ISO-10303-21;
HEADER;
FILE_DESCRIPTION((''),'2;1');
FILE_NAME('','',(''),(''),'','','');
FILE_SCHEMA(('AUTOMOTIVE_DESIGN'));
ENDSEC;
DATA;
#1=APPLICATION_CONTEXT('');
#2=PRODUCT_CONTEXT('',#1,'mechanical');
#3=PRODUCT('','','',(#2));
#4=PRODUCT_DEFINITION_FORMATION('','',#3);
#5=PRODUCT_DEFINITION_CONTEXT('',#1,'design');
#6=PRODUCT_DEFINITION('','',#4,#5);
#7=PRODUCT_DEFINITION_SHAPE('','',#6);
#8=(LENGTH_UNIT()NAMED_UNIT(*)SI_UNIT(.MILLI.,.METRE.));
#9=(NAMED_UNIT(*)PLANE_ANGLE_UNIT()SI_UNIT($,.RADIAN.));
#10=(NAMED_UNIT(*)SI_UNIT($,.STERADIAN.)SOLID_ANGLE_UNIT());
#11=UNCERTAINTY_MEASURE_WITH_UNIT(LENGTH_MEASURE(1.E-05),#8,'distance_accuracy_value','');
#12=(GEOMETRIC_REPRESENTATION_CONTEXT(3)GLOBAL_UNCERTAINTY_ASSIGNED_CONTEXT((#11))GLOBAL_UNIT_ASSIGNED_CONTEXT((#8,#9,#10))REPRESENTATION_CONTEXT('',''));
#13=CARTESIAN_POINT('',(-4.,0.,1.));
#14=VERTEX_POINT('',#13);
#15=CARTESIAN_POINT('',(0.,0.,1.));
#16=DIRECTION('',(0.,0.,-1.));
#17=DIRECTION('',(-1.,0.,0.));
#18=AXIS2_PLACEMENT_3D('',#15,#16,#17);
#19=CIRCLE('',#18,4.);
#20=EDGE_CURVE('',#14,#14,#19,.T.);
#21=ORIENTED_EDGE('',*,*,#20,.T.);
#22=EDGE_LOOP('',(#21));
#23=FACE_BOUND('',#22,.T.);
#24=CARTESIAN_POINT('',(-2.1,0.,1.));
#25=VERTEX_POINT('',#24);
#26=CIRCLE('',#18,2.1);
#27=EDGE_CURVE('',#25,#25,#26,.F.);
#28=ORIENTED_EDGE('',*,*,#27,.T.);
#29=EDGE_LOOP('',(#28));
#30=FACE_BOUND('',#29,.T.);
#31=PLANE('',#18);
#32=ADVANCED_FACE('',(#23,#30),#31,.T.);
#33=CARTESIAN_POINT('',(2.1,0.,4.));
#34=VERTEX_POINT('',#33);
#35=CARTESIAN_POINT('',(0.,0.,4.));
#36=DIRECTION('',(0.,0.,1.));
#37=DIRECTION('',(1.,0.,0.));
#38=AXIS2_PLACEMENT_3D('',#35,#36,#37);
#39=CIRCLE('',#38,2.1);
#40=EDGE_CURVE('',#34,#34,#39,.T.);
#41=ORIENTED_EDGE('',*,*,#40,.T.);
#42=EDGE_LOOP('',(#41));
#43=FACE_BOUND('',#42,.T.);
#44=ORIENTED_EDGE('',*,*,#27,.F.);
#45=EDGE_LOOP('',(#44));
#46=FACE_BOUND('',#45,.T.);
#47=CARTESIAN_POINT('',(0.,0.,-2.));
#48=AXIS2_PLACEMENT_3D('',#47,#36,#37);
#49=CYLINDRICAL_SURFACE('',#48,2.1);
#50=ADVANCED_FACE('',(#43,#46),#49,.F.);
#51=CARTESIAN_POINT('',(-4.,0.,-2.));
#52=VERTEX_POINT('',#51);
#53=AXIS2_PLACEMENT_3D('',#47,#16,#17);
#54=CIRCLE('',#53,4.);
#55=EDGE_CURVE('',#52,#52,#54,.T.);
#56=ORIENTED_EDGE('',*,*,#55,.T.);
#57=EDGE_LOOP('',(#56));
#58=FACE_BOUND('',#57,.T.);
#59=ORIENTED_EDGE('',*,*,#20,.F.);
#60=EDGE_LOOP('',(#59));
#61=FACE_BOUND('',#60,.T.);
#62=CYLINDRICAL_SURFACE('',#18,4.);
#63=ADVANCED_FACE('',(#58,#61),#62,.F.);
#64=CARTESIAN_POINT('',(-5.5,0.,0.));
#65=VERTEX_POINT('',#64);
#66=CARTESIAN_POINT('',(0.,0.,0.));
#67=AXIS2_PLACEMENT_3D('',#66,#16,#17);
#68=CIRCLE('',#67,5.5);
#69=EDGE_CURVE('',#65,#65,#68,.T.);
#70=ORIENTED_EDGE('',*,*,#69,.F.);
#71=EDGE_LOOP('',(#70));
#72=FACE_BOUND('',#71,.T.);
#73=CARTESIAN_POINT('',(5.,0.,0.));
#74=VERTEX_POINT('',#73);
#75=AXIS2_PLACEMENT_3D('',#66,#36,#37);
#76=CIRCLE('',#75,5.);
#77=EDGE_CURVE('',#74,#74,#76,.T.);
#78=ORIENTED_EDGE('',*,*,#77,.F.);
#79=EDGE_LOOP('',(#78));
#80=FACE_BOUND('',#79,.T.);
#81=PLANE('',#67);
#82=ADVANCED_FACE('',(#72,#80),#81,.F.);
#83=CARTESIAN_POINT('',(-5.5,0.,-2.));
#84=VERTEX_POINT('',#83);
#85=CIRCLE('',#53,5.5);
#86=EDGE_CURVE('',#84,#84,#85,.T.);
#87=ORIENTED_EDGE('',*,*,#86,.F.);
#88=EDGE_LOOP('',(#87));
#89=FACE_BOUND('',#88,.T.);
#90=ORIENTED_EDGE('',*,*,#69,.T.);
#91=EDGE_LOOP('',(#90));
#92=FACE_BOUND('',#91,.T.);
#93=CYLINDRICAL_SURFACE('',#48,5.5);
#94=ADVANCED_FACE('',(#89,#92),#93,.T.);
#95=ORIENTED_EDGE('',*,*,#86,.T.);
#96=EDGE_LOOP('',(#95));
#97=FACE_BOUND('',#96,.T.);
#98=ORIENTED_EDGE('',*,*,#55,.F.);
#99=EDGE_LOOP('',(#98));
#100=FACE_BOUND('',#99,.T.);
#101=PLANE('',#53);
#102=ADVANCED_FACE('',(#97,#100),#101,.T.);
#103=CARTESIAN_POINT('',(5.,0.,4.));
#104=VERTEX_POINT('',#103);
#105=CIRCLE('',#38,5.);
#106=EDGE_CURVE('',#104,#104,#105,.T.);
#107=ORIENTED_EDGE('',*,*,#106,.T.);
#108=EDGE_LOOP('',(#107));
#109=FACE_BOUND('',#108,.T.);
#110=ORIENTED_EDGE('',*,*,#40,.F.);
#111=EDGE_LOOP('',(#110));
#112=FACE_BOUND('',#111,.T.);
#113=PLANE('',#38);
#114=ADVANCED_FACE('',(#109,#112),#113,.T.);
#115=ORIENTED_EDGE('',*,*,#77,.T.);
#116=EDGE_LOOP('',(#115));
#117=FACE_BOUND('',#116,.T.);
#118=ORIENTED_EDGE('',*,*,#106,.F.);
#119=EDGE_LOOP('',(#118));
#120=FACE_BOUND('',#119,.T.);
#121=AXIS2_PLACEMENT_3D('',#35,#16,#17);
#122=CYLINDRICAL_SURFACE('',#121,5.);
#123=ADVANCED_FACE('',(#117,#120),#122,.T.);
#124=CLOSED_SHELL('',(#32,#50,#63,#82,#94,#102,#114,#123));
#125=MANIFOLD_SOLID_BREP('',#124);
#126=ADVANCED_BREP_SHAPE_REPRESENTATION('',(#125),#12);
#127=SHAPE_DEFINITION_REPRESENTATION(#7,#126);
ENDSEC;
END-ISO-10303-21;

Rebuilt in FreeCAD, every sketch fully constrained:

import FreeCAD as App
import Part
import Sketcher

V = App.Vector

doc = App.newDocument("Part")
params = doc.addObject("Spreadsheet::Sheet", "Params")
for row, (alias, value) in enumerate([
    ("sketch1_diameter", "10 mm"),
    ("pad1_length", "4 mm"),
    ("sketch2_diameter", "11 mm"),
    ("pad2_length", "2 mm"),
    ("sketch3_diameter", "4.2 mm"),
    ("sketch4_diameter", "8 mm"),
    ("pocket2_length", "3 mm"),
], start=1):
    params.set(f"A{row}", alias)
    params.set(f"B{row}", "=" + value)
    params.setAlias(f"B{row}", alias)

body = doc.addObject("PartDesign::Body", "Body")

# Sketch on XY plane
sketch1 = body.newObject("Sketcher::SketchObject", "Sketch")
sketch1.AttachmentSupport = (doc.getObject("XY_Plane"), [""])
sketch1.MapMode = "FlatFace"
sketch1.addGeometry(Part.Circle(V(0, 0, 0), V(0, 0, 1), 5), False)
sketch1.addConstraint([
    Sketcher.Constraint("Coincident", 0, 3, -1, 1),
    Sketcher.Constraint("Diameter", 0, 10.0),
])
sketch1.setExpression("Constraints[1]", "Params.sketch1_diameter")
pad1 = body.newObject("PartDesign::Pad", "Pad")
pad1.Profile = sketch1
pad1.setExpression("Length", "Params.pad1_length")

# Sketch on XY plane
sketch2 = body.newObject("Sketcher::SketchObject", "Sketch001")
sketch2.AttachmentSupport = (doc.getObject("XY_Plane"), [""])
sketch2.MapMode = "FlatFace"
sketch2.addGeometry(Part.Circle(V(0, 0, 0), V(0, 0, 1), 5.5), False)
sketch2.addConstraint([
    Sketcher.Constraint("Coincident", 0, 3, -1, 1),
    Sketcher.Constraint("Diameter", 0, 11.0),
])
sketch2.setExpression("Constraints[1]", "Params.sketch2_diameter")
pad2 = body.newObject("PartDesign::Pad", "Pad001")
pad2.Profile = sketch2
pad2.setExpression("Length", "Params.pad2_length")
pad2.Reversed = True

# Sketch on XY plane
sketch3 = body.newObject("Sketcher::SketchObject", "Sketch002")
sketch3.AttachmentSupport = (doc.getObject("XY_Plane"), [""])
sketch3.MapMode = "FlatFace"
sketch3.AttachmentOffset = App.Placement(V(0, 0, 4), App.Rotation())
sketch3.addGeometry(Part.Circle(V(0, 0, 0), V(0, 0, 1), 2.1), False)
sketch3.addConstraint([
    Sketcher.Constraint("Coincident", 0, 3, -1, 1),
    Sketcher.Constraint("Diameter", 0, 4.2),
])
sketch3.setExpression("Constraints[1]", "Params.sketch3_diameter")
pocket1 = body.newObject("PartDesign::Pocket", "Pocket")
pocket1.Profile = sketch3
pocket1.Type = "ThroughAll"

# Sketch on XY plane
sketch4 = body.newObject("Sketcher::SketchObject", "Sketch003")
sketch4.AttachmentSupport = (doc.getObject("XY_Plane"), [""])
sketch4.MapMode = "FlatFace"
sketch4.AttachmentOffset = App.Placement(V(0, 0, -2), App.Rotation())
sketch4.addGeometry(Part.Circle(V(0, 0, 0), V(0, 0, 1), 4), False)
sketch4.addConstraint([
    Sketcher.Constraint("Coincident", 0, 3, -1, 1),
    Sketcher.Constraint("Diameter", 0, 8.0),
])
sketch4.setExpression("Constraints[1]", "Params.sketch4_diameter")
pocket2 = body.newObject("PartDesign::Pocket", "Pocket001")
pocket2.Profile = sketch4
pocket2.setExpression("Length", "Params.pocket2_length")
pocket2.Reversed = True

doc.recompute()
